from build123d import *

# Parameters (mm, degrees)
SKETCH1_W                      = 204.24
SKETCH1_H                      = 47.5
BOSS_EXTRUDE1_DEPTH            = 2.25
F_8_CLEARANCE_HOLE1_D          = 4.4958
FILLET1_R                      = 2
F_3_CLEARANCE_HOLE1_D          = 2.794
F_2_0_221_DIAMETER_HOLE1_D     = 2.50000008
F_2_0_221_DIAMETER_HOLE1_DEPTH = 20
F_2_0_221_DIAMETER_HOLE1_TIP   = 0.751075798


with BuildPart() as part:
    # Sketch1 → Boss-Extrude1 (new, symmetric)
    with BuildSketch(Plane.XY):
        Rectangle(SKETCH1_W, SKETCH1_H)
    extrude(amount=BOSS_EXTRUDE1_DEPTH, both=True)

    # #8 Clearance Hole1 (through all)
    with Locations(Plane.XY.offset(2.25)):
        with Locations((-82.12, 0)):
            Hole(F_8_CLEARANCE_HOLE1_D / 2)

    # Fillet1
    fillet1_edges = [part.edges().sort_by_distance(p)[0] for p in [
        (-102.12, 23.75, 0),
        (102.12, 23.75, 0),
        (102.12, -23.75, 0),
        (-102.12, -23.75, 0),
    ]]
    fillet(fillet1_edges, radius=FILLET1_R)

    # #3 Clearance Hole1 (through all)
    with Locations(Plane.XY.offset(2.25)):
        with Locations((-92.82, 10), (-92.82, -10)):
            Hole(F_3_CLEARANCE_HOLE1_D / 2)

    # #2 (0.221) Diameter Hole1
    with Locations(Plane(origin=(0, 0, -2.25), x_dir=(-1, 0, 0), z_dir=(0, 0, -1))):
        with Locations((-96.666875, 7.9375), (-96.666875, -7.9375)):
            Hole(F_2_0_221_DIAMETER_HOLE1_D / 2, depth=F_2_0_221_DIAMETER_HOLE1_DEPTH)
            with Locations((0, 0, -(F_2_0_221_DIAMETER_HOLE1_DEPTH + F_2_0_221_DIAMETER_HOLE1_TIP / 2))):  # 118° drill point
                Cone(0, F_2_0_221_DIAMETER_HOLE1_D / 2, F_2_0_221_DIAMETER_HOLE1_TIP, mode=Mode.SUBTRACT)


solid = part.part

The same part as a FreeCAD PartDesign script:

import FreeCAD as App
import Part
import Sketcher
from FreeCAD import Vector
Q = App.Units.Quantity


def edges_at(feature, points):
    """Names of the edges that pass closest to the given points."""
    edges = feature.Shape.Edges
    near = lambda p: min(range(len(edges)), key=lambda i: edges[i].distToShape(Part.Vertex(*p))[0])
    return sorted({f"Edge{near(p) + 1}" for p in points})

doc = App.newDocument("Part")
body = doc.addObject("PartDesign::Body", "Body")

# Sketch on XY plane
sketch1 = body.newObject("Sketcher::SketchObject", "Sketch")
sketch1.AttachmentSupport = (doc.getObject("XY_Plane"), [""])
sketch1.MapMode = "FlatFace"
sketch1.addGeometry([
    Part.LineSegment(Vector(-102, 24, 0), Vector(-102, -24, 0)),
    Part.LineSegment(Vector(-102, -24, 0), Vector(102, -24, 0)),
    Part.LineSegment(Vector(102, -24, 0), Vector(102, 24, 0)),
    Part.LineSegment(Vector(102, 24, 0), Vector(-102, 24, 0)),
], False)
sketch1.addConstraint([
    Sketcher.Constraint("Coincident", 0, 2, 1, 1),
    Sketcher.Constraint("Coincident", 1, 2, 2, 1),
    Sketcher.Constraint("Coincident", 2, 2, 3, 1),
    Sketcher.Constraint("Coincident", 3, 2, 0, 1),
    Sketcher.Constraint("Vertical", 0),
    Sketcher.Constraint("Horizontal", 1),
    Sketcher.Constraint("Vertical", 2),
    Sketcher.Constraint("Horizontal", 3),
    Sketcher.Constraint("Symmetric", 0, 2, 2, 2, -1, 1),
    Sketcher.Constraint("DistanceY", 0, 2, 0, 1, Q("47.5 mm")),
    Sketcher.Constraint("DistanceX", 1, 1, 1, 2, Q("204.24 mm")),
])
pad1 = body.newObject("PartDesign::Pad", "Pad")
pad1.Profile = sketch1
pad1.Length = 4.5
pad1.Midplane = True

# Sketch on XY plane
sketch2 = body.newObject("Sketcher::SketchObject", "Sketch001")
sketch2.AttachmentSupport = (doc.getObject("XY_Plane"), [""])
sketch2.MapMode = "FlatFace"
sketch2.AttachmentOffset = App.Placement(Vector(0, 0, 2.25), App.Rotation())
sketch2.addGeometry(Part.Circle(Vector(-82.1, 0, 0), Vector(0, 0, 1), 2.2), False)
sketch2.addConstraint([
    Sketcher.Constraint("PointOnObject", 0, 3, -1),
    Sketcher.Constraint("Diameter", 0, Q("4.4958 mm")),
    Sketcher.Constraint("DistanceX", 0, 3, -1, 1, Q("82.12 mm")),
])
doc.recompute()
hole = body.newObject("PartDesign::Hole", "Hole")
hole.Profile = sketch2
hole.ThreadType = "None"
hole.Diameter = 4.4958
hole.DepthType = "ThroughAll"
doc.recompute()

fillet = body.newObject("PartDesign::Fillet", "Fillet")
fillet.Base = (hole, edges_at(hole, [
    (-102.12, 23.75, 0),
    (102.12, 23.75, 0),
    (102.12, -23.75, 0),
    (-102.12, -23.75, 0),
]))
fillet.Radius = 2

# Sketch on XY plane
sketch3 = body.newObject("Sketcher::SketchObject", "Sketch002")
sketch3.AttachmentSupport = (doc.getObject("XY_Plane"), [""])
sketch3.MapMode = "FlatFace"
sketch3.AttachmentOffset = App.Placement(Vector(0, 0, 2.25), App.Rotation())
sketch3.addGeometry([
    Part.Circle(Vector(-92.8, 10, 0), Vector(0, 0, 1), 1.4),
    Part.Circle(Vector(-92.8, -10, 0), Vector(0, 0, 1), 1.4),
], False)
sketch3.addConstraint([
    Sketcher.Constraint("Equal", 0, 1),
    Sketcher.Constraint("Symmetric", 0, 3, 1, 3, -1),
    Sketcher.Constraint("Diameter", 0, Q("2.794 mm")),
    Sketcher.Constraint("DistanceY", -1, 1, 0, 3, Q("10 mm")),
    Sketcher.Constraint("DistanceX", 0, 3, -1, 1, Q("92.82 mm")),
])
doc.recompute()
hole2 = body.newObject("PartDesign::Hole", "Hole001")
hole2.Profile = sketch3
hole2.ThreadType = "None"
hole2.Diameter = 2.794
hole2.DepthType = "ThroughAll"

# Sketch on XY plane
sketch4 = body.newObject("Sketcher::SketchObject", "Sketch003")
sketch4.AttachmentSupport = (doc.getObject("XY_Plane"), [""])
sketch4.MapMode = "FlatFace"
sketch4.AttachmentOffset = App.Placement(Vector(0, 0, -2.25), App.Rotation())
sketch4.addGeometry([
    Part.Circle(Vector(96.7, 7.9, 0), Vector(0, 0, 1), 1.3),
    Part.Circle(Vector(96.7, -7.9, 0), Vector(0, 0, 1), 1.3),
], False)
sketch4.addConstraint([
    Sketcher.Constraint("Equal", 0, 1),
    Sketcher.Constraint("Symmetric", 0, 3, 1, 3, -1),
    Sketcher.Constraint("Diameter", 0, Q("2.5 mm")),
    Sketcher.Constraint("DistanceY", 1, 3, 0, 3, Q("15.875 mm")),
    Sketcher.Constraint("DistanceX", -1, 1, 0, 3, Q("96.666875 mm")),
])
doc.recompute()
hole3 = body.newObject("PartDesign::Hole", "Hole002")
hole3.Profile = sketch4
hole3.ThreadType = "None"
hole3.Diameter = 2.5
hole3.DepthType = "Dimension"
hole3.Depth = 20
hole3.DrillPoint = "Angled"
hole3.DrillPointAngle = 118
hole3.Reversed = True

doc.recompute()
